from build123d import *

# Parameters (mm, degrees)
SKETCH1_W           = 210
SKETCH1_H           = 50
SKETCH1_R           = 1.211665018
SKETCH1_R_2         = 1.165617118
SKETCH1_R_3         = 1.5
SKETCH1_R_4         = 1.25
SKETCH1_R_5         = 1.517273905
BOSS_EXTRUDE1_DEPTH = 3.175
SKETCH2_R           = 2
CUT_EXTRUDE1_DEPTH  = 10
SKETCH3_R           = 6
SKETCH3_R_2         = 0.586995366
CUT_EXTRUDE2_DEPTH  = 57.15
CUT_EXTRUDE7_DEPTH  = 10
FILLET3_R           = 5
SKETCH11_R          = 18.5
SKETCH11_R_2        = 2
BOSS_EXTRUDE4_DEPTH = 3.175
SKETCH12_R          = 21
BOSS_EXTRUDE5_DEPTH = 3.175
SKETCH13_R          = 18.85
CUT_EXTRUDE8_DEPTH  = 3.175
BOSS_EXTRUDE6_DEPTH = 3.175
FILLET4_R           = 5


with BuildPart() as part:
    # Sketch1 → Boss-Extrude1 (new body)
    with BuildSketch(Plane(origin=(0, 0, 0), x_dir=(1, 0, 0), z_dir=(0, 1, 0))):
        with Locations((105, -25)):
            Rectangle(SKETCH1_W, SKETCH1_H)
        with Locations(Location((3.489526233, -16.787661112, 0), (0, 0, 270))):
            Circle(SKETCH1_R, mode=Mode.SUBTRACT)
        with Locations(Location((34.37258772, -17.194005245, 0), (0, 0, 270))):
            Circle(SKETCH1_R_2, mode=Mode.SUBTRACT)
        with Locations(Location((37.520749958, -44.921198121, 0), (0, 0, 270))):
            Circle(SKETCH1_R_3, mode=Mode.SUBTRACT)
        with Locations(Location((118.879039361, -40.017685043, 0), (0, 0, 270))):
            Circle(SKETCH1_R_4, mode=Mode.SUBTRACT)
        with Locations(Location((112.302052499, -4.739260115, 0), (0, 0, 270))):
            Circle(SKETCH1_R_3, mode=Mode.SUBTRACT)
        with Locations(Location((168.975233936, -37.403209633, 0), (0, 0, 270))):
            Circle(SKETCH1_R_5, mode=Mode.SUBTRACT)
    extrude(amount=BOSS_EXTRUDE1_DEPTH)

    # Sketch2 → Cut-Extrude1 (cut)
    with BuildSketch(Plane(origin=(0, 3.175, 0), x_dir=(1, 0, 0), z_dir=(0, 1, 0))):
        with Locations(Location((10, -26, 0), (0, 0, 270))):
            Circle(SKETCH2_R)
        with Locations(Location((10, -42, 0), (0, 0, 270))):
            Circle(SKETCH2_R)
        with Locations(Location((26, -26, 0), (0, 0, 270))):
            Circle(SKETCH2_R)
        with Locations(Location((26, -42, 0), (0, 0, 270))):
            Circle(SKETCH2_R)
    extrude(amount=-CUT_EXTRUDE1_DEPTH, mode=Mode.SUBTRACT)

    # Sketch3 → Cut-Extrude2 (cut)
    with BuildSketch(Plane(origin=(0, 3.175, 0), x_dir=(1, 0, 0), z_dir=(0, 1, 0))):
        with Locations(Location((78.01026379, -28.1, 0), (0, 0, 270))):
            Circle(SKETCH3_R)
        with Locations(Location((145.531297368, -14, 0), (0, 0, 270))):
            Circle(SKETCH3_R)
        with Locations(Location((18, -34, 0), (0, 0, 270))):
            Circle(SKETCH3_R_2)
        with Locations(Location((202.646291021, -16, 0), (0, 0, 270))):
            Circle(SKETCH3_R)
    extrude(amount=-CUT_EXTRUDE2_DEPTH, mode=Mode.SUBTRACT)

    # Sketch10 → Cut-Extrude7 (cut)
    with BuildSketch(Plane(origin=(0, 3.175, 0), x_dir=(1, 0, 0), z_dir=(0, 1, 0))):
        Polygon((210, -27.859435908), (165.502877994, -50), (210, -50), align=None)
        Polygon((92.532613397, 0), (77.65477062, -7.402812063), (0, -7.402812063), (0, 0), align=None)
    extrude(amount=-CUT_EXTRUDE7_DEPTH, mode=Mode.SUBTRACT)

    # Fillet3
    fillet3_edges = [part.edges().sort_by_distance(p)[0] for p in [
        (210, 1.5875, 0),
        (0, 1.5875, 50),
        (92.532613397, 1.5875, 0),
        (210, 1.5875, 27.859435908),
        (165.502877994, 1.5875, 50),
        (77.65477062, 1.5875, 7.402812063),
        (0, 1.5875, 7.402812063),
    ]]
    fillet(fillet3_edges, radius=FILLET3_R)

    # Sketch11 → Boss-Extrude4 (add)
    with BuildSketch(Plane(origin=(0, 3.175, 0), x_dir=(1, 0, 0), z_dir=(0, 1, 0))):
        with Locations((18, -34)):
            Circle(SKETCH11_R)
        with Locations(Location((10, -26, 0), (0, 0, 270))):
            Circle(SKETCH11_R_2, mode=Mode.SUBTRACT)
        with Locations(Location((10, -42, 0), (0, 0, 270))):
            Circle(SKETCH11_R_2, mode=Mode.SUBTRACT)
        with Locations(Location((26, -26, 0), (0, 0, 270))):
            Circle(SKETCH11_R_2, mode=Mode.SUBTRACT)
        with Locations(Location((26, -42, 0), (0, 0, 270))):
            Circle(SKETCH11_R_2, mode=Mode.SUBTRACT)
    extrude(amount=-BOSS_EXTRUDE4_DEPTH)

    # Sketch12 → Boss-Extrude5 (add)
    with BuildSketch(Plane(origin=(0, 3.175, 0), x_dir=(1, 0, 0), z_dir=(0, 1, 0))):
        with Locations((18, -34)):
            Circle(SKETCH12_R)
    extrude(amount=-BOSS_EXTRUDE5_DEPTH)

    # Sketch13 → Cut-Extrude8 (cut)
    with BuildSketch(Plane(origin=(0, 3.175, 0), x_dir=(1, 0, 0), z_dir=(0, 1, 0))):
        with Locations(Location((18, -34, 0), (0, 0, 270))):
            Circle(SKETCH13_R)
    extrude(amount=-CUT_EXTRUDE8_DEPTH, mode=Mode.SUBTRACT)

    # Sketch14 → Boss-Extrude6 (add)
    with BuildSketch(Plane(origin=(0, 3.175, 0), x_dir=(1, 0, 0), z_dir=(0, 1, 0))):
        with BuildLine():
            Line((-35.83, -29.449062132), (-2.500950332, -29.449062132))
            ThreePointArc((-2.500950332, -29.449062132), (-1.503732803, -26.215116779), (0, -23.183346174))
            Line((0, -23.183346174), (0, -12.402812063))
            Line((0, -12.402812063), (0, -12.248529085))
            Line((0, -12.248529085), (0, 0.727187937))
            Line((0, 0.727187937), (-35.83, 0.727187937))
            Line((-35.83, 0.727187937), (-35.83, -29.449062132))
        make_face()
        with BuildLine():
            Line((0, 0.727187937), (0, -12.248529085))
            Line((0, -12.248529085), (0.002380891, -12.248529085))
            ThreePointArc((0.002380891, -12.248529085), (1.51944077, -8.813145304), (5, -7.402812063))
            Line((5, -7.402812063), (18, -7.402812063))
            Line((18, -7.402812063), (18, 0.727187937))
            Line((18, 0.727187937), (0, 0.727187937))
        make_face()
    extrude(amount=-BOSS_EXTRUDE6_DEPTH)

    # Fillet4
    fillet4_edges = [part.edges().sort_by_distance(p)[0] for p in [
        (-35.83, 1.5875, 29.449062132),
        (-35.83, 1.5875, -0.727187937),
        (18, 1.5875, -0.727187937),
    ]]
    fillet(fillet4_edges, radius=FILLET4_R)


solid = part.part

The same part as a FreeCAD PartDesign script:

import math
import FreeCAD as App
import Part
import Sketcher
from FreeCAD import Vector


def edges_at(feature, points):
    """Names of the edges that pass closest to the given points."""
    edges = feature.Shape.Edges
    near = lambda p: min(range(len(edges)), key=lambda i: edges[i].distToShape(Part.Vertex(*p))[0])
    return sorted({f"Edge{near(p) + 1}" for p in points})

doc = App.newDocument("Part")
body = doc.addObject("PartDesign::Body", "Body")

sketch1 = body.newObject("Sketcher::SketchObject", "Sketch")
sketch1.AttachmentSupport = (doc.getObject("XZ_Plane"), [""])
sketch1.MapMode = "FlatFace"
sketch1.addGeometry([
    Part.LineSegment(Vector(0, 0, 0), Vector(0, 50, 0)),
    Part.LineSegment(Vector(0, 50, 0), Vector(210, 50, 0)),
    Part.LineSegment(Vector(210, 50, 0), Vector(210, 0, 0)),
    Part.LineSegment(Vector(210, 0, 0), Vector(0, 0, 0)),
    Part.Circle(Vector(37.52075, 44.921198, 0), Vector(0, 0, 1), 1.5),
    Part.Circle(Vector(118.879039, 40.017685, 0), Vector(0, 0, 1), 1.25),
    Part.Circle(Vector(168.975234, 37.40321, 0), Vector(0, 0, 1), 1.517274),
    Part.Circle(Vector(3.489526, 16.787661, 0), Vector(0, 0, 1), 1.211665),
    Part.Circle(Vector(34.372588, 17.194005, 0), Vector(0, 0, 1), 1.165617),
    Part.Circle(Vector(112.302052, 4.73926, 0), Vector(0, 0, 1), 1.5),
], False)
sketch1.addConstraint([
    Sketcher.Constraint("Coincident", 0, 2, 1, 1),
    Sketcher.Constraint("Coincident", 1, 2, 2, 1),
    Sketcher.Constraint("Coincident", 2, 2, 3, 1),
    Sketcher.Constraint("Coincident", 3, 2, 0, 1),
    Sketcher.Constraint("Vertical", 0),
    Sketcher.Constraint("Horizontal", 1),
    Sketcher.Constraint("Vertical", 2),
    Sketcher.Constraint("Horizontal", 3),
    Sketcher.Constraint("Coincident", 3, 2, -1, 1),
    Sketcher.Constraint("Equal", 4, 9),
    Sketcher.Constraint("Diameter", 4, 3.0),
    Sketcher.Constraint("Diameter", 5, 2.5),
    Sketcher.Constraint("DistanceX", 1, 1, 1, 2, 210.0),
    Sketcher.Constraint("DistanceY", 0, 1, 0, 2, 50.0),
    Sketcher.Constraint("Diameter", 7, 2.42333),
    Sketcher.Constraint("Diameter", 6, 3.034548),
    Sketcher.Constraint("Diameter", 8, 2.331234),
    Sketcher.Constraint("DistanceY", -1, 1, 4, 3, 44.921198),
    Sketcher.Constraint("DistanceY", 9, 3, 7, 3, 12.048401),
    Sketcher.Constraint("DistanceX", -1, 1, 4, 3, 37.52075),
    Sketcher.Constraint("DistanceX", -1, 1, 5, 3, 118.879039),
    Sketcher.Constraint("DistanceY", -1, 1, 6, 3, 37.40321),
    Sketcher.Constraint("DistanceY", -1, 1, 7, 3, 16.787661),
    Sketcher.Constraint("DistanceX", 7, 3, 8, 3, 30.883061),
    Sketcher.Constraint("DistanceX", 8, 3, 5, 3, 84.506452),
    Sketcher.Constraint("DistanceY", 8, 3, 5, 3, 22.82368),
    Sketcher.Constraint("DistanceX", 9, 3, 6, 3, 56.673181),
    Sketcher.Constraint("DistanceY", -1, 1, 5, 3, 40.017685),
    Sketcher.Constraint("DistanceX", -1, 1, 6, 3, 168.975234),
])
pad1 = body.newObject("PartDesign::Pad", "Pad")
pad1.Profile = sketch1
pad1.Length = 3.175
pad1.Reversed = True

sketch2 = body.newObject("Sketcher::SketchObject", "Sketch001")
sketch2.AttachmentSupport = (doc.getObject("XZ_Plane"), [""])
sketch2.MapMode = "FlatFace"
sketch2.AttachmentOffset = App.Placement(Vector(0, 0, -3.175), App.Rotation())
sketch2.addGeometry([
    Part.Circle(Vector(10, 26, 0), Vector(0, 0, 1), 2),
    Part.Circle(Vector(10, 42, 0), Vector(0, 0, 1), 2),
    Part.Circle(Vector(26, 26, 0), Vector(0, 0, 1), 2),
    Part.Circle(Vector(26, 42, 0), Vector(0, 0, 1), 2),
], False)
sketch2.addConstraint([
    Sketcher.Constraint("Equal", 0, 1),
    Sketcher.Constraint("Equal", 1, 2),
    Sketcher.Constraint("Equal", 2, 3),
    Sketcher.Constraint("Horizontal", 0, 3, 2, 3),
    Sketcher.Constraint("Horizontal", 1, 3, 3, 3),
    Sketcher.Constraint("Vertical", 0, 3, 1, 3),
    Sketcher.Constraint("Vertical", 2, 3, 3, 3),
    Sketcher.Constraint("Diameter", 0, 4.0),
    Sketcher.Constraint("DistanceX", -1, 1, 0, 3, 10.0),
    Sketcher.Constraint("DistanceY", -1, 1, 0, 3, 26.0),
    Sketcher.Constraint("DistanceY", -1, 1, 1, 3, 42.0),
    Sketcher.Constraint("DistanceX", -1, 1, 2, 3, 26.0),
])
pocket1 = body.newObject("PartDesign::Pocket", "Pocket")
pocket1.Profile = sketch2
pocket1.Length = 10
pocket1.Reversed = True

sketch3 = body.newObject("Sketcher::SketchObject", "Sketch002")
sketch3.AttachmentSupport = (doc.getObject("XZ_Plane"), [""])
sketch3.MapMode = "FlatFace"
sketch3.AttachmentOffset = App.Placement(Vector(0, 0, -3.175), App.Rotation())
sketch3.addGeometry([
    Part.Circle(Vector(78.010264, 28.1, 0), Vector(0, 0, 1), 6),
    Part.Circle(Vector(145.531297, 14, 0), Vector(0, 0, 1), 6),
    Part.Circle(Vector(18, 34, 0), Vector(0, 0, 1), 0.586995),
    Part.Circle(Vector(202.646291, 16, 0), Vector(0, 0, 1), 6),
], False)
sketch3.addConstraint([
    Sketcher.Constraint("Equal", 0, 1),
    Sketcher.Constraint("Equal", 1, 3),
    Sketcher.Constraint("Diameter", 0, 12.0),
    Sketcher.Constraint("DistanceY", -1, 1, 1, 3, 14.0),
    Sketcher.Constraint("DistanceX", -1, 1, 2, 3, 18.0),
    Sketcher.Constraint("DistanceY", -1, 1, 2, 3, 34.0),
    Sketcher.Constraint("DistanceY", -1, 1, 3, 3, 16.0),
    Sketcher.Constraint("DistanceY", -1, 1, 0, 3, 28.1),
    Sketcher.Constraint("Diameter", 2, 1.173991),
    Sketcher.Constraint("DistanceX", -1, 1, 3, 3, 202.646291),
    Sketcher.Constraint("DistanceX", -1, 1, 0, 3, 78.010264),
    Sketcher.Constraint("DistanceX", -1, 1, 1, 3, 145.531297),
])
pocket2 = body.newObject("PartDesign::Pocket", "Pocket001")
pocket2.Profile = sketch3
pocket2.Length = 57.15
pocket2.Reversed = True

sketch4 = body.newObject("Sketcher::SketchObject", "Sketch003")
sketch4.AttachmentSupport = (doc.getObject("XZ_Plane"), [""])
sketch4.MapMode = "FlatFace"
sketch4.AttachmentOffset = App.Placement(Vector(0, 0, -3.175), App.Rotation())
sketch4.addGeometry([
    Part.LineSegment(Vector(210, 27.859436, 0), Vector(165.502878, 50, 0)),
    Part.LineSegment(Vector(165.502878, 50, 0), Vector(210, 50, 0)),
    Part.LineSegment(Vector(210, 50, 0), Vector(210, 27.859436, 0)),
    Part.LineSegment(Vector(77.654771, 7.402812, 0), Vector(92.532613, 0, 0)),
    Part.LineSegment(Vector(92.532613, 0, 0), Vector(0, 0, 0)),
    Part.LineSegment(Vector(0, 0, 0), Vector(0, 7.402812, 0)),
    Part.LineSegment(Vector(0, 7.402812, 0), Vector(77.654771, 7.402812, 0)),
], False)
sketch4.addConstraint([
    Sketcher.Constraint("Coincident", 0, 2, 1, 1),
    Sketcher.Constraint("Coincident", 1, 2, 2, 1),
    Sketcher.Constraint("Coincident", 2, 2, 0, 1),
    Sketcher.Constraint("Coincident", 3, 2, 4, 1),
    Sketcher.Constraint("Coincident", 4, 2, 5, 1),
    Sketcher.Constraint("Coincident", 5, 2, 6, 1),
    Sketcher.Constraint("Coincident", 6, 2, 3, 1),
    Sketcher.Constraint("Horizontal", 1),
    Sketcher.Constraint("Vertical", 2),
    Sketcher.Constraint("Horizontal", 4),
    Sketcher.Constraint("Vertical", 5),
    Sketcher.Constraint("Horizontal", 6),
    Sketcher.Constraint("Coincident", 4, 2, -1, 1),
    Sketcher.Constraint("Parallel", 0, 3),
    Sketcher.Constraint("DistanceY", -1, 1, 0, 2, 50.0),
    Sketcher.Constraint("DistanceX", -1, 1, 1, 2, 210.0),
    Sketcher.Constraint("DistanceX", 6, 1, 6, 2, 77.654771),
    Sketcher.Constraint("Distance", 0, 49.701091),
    Sketcher.Constraint("DistanceX", 1, 1, 1, 2, 44.497122),
    Sketcher.Constraint("DistanceX", 4, 2, 4, 1, 92.532613),
])
pocket3 = body.newObject("PartDesign::Pocket", "Pocket002")
pocket3.Profile = sketch4
pocket3.Length = 10
pocket3.Reversed = True
doc.recompute()

fillet = body.newObject("PartDesign::Fillet", "Fillet")
fillet.Base = (pocket3, edges_at(pocket3, [
    (210, 1.587, 0),
    (0, 1.587, 50),
    (92.533, 1.587, 0),
    (210, 1.587, 27.859),
    (165.503, 1.587, 50),
    (77.655, 1.587, 7.403),
    (0, 1.587, 7.403),
]))
fillet.Radius = 5

sketch5 = body.newObject("Sketcher::SketchObject", "Sketch004")
sketch5.AttachmentSupport = (doc.getObject("XZ_Plane"), [""])
sketch5.MapMode = "FlatFace"
sketch5.AttachmentOffset = App.Placement(Vector(0, 0, -3.175), App.Rotation())
sketch5.addGeometry([
    Part.Circle(Vector(18, 34, 0), Vector(0, 0, 1), 18.5),
    Part.Circle(Vector(10, 42, 0), Vector(0, 0, 1), 2),
    Part.Circle(Vector(26, 42, 0), Vector(0, 0, 1), 2),
    Part.Circle(Vector(10, 26, 0), Vector(0, 0, 1), 2),
    Part.Circle(Vector(26, 26, 0), Vector(0, 0, 1), 2),
], False)
sketch5.addConstraint([
    Sketcher.Constraint("Equal", 1, 2),
    Sketcher.Constraint("Equal", 2, 3),
    Sketcher.Constraint("Equal", 3, 4),
    Sketcher.Constraint("Horizontal", 1, 3, 2, 3),
    Sketcher.Constraint("Horizontal", 3, 3, 4, 3),
    Sketcher.Constraint("Vertical", 1, 3, 3, 3),
    Sketcher.Constraint("Vertical", 2, 3, 4, 3),
    Sketcher.Constraint("Diameter", 0, 37.0),
    Sketcher.Constraint("Diameter", 1, 4.0),
    Sketcher.Constraint("DistanceX", -1, 1, 0, 3, 18.0),
    Sketcher.Constraint("DistanceY", -1, 1, 0, 3, 34.0),
    Sketcher.Constraint("DistanceX", -1, 1, 1, 3, 10.0),
    Sketcher.Constraint("DistanceY", -1, 1, 1, 3, 42.0),
    Sketcher.Constraint("DistanceX", -1, 1, 2, 3, 26.0),
    Sketcher.Constraint("DistanceY", -1, 1, 3, 3, 26.0),
])
pad2 = body.newObject("PartDesign::Pad", "Pad001")
pad2.Profile = sketch5
pad2.Length = 3.175

sketch6 = body.newObject("Sketcher::SketchObject", "Sketch005")
sketch6.AttachmentSupport = (doc.getObject("XZ_Plane"), [""])
sketch6.MapMode = "FlatFace"
sketch6.AttachmentOffset = App.Placement(Vector(0, 0, -3.175), App.Rotation())
sketch6.addGeometry(Part.Circle(Vector(18, 34, 0), Vector(0, 0, 1), 21), False)
sketch6.addConstraint([
    Sketcher.Constraint("Diameter", 0, 42.0),
    Sketcher.Constraint("DistanceX", -1, 1, 0, 3, 18.0),
    Sketcher.Constraint("DistanceY", -1, 1, 0, 3, 34.0),
])
pad3 = body.newObject("PartDesign::Pad", "Pad002")
pad3.Profile = sketch6
pad3.Length = 3.175

sketch7 = body.newObject("Sketcher::SketchObject", "Sketch006")
sketch7.AttachmentSupport = (doc.getObject("XZ_Plane"), [""])
sketch7.MapMode = "FlatFace"
sketch7.AttachmentOffset = App.Placement(Vector(0, 0, -3.175), App.Rotation())
sketch7.addGeometry(Part.Circle(Vector(18, 34, 0), Vector(0, 0, 1), 18.85), False)
sketch7.addConstraint([
    Sketcher.Constraint("Diameter", 0, 37.7),
    Sketcher.Constraint("DistanceX", -1, 1, 0, 3, 18.0),
    Sketcher.Constraint("DistanceY", -1, 1, 0, 3, 34.0),
])
pocket4 = body.newObject("PartDesign::Pocket", "Pocket003")
pocket4.Profile = sketch7
pocket4.Length = 3.175
pocket4.Reversed = True

sketch8 = body.newObject("Sketcher::SketchObject", "Sketch007")
sketch8.AttachmentSupport = (doc.getObject("XZ_Plane"), [""])
sketch8.MapMode = "FlatFace"
sketch8.AttachmentOffset = App.Placement(Vector(0, 0, -3.175), App.Rotation())
sketch8.addGeometry([
    Part.LineSegment(Vector(-35.83, 29.449062, 0), Vector(-2.50095, 29.449062, 0)),
    Part.ArcOfCircle(Part.Circle(Vector(18, 34, 0), Vector(0, 0, 1), 21), math.radians(-167.484054), math.radians(-148.997281)),
    Part.LineSegment(Vector(0, 23.183346, 0), Vector(0, 12.248529, 0)),
    Part.LineSegment(Vector(0, 12.248529, 0), Vector(0.002381, 12.248529, 0)),
    Part.ArcOfCircle(Part.Circle(Vector(5, 12.402812, 0), Vector(0, 0, 1), 5), math.radians(-178.231767), math.radians(-90)),
    Part.LineSegment(Vector(5, 7.402812, 0), Vector(18, 7.402812, 0)),
    Part.LineSegment(Vector(18, 7.402812, 0), Vector(18, -0.727188, 0)),
    Part.LineSegment(Vector(18, -0.727188, 0), Vector(-35.83, -0.727188, 0)),
    Part.LineSegment(Vector(-35.83, -0.727188, 0), Vector(-35.83, 29.449062, 0)),
], False)
sketch8.addConstraint([
    Sketcher.Constraint("Coincident", 0, 2, 1, 1),
    Sketcher.Constraint("Coincident", 1, 2, 2, 1),
    Sketcher.Constraint("Coincident", 2, 2, 3, 1),
    Sketcher.Constraint("Coincident", 3, 2, 4, 1),
    Sketcher.Constraint("Tangent", 4, 2, 5, 1),
    Sketcher.Constraint("Coincident", 5, 2, 6, 1),
    Sketcher.Constraint("Coincident", 6, 2, 7, 1),
    Sketcher.Constraint("Coincident", 7, 2, 8, 1),
    Sketcher.Constraint("Coincident", 8, 2, 0, 1),
    Sketcher.Constraint("Horizontal", 0),
    Sketcher.Constraint("Vertical", 2),
    Sketcher.Constraint("Horizontal", 3),
    Sketcher.Constraint("Horizontal", 5),
    Sketcher.Constraint("Vertical", 6),
    Sketcher.Constraint("Horizontal", 7),
    Sketcher.Constraint("Vertical", 8),
    Sketcher.Constraint("PointOnObject", 1, 2, -2),
    Sketcher.Constraint("Vertical", 1, 3, 5, 2),
    Sketcher.Constraint("Radius", 1, 21.0),
    Sketcher.Constraint("Radius", 4, 5.0),
    Sketcher.Constraint("DistanceX", 5, 1, 5, 2, 13.0),
    Sketcher.Constraint("DistanceX", -1, 1, 1, 3, 18.0),
    Sketcher.Constraint("DistanceY", -1, 1, 1, 3, 34.0),
    Sketcher.Constraint("DistanceX", 7, 2, 7, 1, 53.83),
    Sketcher.Constraint("DistanceY", 6, 2, 6, 1, 8.13),
    Sketcher.Constraint("DistanceX", 0, 1, 0, 2, 33.32905),
    Sketcher.Constraint("DistanceX", 3, 1, 3, 2, 0.002381),
    Sketcher.Constraint("DistanceY", 8, 1, 8, 2, 30.17625),
])
pad4 = body.newObject("PartDesign::Pad", "Pad003")
pad4.Profile = sketch8
pad4.Length = 3.175
doc.recompute()

fillet2 = body.newObject("PartDesign::Fillet", "Fillet001")
fillet2.Base = (pad4, edges_at(pad4, [(-35.83, 1.587, 29.449), (-35.83, 1.587, -0.727), (18, 1.587, -0.727)]))
fillet2.Radius = 5

doc.recompute()
